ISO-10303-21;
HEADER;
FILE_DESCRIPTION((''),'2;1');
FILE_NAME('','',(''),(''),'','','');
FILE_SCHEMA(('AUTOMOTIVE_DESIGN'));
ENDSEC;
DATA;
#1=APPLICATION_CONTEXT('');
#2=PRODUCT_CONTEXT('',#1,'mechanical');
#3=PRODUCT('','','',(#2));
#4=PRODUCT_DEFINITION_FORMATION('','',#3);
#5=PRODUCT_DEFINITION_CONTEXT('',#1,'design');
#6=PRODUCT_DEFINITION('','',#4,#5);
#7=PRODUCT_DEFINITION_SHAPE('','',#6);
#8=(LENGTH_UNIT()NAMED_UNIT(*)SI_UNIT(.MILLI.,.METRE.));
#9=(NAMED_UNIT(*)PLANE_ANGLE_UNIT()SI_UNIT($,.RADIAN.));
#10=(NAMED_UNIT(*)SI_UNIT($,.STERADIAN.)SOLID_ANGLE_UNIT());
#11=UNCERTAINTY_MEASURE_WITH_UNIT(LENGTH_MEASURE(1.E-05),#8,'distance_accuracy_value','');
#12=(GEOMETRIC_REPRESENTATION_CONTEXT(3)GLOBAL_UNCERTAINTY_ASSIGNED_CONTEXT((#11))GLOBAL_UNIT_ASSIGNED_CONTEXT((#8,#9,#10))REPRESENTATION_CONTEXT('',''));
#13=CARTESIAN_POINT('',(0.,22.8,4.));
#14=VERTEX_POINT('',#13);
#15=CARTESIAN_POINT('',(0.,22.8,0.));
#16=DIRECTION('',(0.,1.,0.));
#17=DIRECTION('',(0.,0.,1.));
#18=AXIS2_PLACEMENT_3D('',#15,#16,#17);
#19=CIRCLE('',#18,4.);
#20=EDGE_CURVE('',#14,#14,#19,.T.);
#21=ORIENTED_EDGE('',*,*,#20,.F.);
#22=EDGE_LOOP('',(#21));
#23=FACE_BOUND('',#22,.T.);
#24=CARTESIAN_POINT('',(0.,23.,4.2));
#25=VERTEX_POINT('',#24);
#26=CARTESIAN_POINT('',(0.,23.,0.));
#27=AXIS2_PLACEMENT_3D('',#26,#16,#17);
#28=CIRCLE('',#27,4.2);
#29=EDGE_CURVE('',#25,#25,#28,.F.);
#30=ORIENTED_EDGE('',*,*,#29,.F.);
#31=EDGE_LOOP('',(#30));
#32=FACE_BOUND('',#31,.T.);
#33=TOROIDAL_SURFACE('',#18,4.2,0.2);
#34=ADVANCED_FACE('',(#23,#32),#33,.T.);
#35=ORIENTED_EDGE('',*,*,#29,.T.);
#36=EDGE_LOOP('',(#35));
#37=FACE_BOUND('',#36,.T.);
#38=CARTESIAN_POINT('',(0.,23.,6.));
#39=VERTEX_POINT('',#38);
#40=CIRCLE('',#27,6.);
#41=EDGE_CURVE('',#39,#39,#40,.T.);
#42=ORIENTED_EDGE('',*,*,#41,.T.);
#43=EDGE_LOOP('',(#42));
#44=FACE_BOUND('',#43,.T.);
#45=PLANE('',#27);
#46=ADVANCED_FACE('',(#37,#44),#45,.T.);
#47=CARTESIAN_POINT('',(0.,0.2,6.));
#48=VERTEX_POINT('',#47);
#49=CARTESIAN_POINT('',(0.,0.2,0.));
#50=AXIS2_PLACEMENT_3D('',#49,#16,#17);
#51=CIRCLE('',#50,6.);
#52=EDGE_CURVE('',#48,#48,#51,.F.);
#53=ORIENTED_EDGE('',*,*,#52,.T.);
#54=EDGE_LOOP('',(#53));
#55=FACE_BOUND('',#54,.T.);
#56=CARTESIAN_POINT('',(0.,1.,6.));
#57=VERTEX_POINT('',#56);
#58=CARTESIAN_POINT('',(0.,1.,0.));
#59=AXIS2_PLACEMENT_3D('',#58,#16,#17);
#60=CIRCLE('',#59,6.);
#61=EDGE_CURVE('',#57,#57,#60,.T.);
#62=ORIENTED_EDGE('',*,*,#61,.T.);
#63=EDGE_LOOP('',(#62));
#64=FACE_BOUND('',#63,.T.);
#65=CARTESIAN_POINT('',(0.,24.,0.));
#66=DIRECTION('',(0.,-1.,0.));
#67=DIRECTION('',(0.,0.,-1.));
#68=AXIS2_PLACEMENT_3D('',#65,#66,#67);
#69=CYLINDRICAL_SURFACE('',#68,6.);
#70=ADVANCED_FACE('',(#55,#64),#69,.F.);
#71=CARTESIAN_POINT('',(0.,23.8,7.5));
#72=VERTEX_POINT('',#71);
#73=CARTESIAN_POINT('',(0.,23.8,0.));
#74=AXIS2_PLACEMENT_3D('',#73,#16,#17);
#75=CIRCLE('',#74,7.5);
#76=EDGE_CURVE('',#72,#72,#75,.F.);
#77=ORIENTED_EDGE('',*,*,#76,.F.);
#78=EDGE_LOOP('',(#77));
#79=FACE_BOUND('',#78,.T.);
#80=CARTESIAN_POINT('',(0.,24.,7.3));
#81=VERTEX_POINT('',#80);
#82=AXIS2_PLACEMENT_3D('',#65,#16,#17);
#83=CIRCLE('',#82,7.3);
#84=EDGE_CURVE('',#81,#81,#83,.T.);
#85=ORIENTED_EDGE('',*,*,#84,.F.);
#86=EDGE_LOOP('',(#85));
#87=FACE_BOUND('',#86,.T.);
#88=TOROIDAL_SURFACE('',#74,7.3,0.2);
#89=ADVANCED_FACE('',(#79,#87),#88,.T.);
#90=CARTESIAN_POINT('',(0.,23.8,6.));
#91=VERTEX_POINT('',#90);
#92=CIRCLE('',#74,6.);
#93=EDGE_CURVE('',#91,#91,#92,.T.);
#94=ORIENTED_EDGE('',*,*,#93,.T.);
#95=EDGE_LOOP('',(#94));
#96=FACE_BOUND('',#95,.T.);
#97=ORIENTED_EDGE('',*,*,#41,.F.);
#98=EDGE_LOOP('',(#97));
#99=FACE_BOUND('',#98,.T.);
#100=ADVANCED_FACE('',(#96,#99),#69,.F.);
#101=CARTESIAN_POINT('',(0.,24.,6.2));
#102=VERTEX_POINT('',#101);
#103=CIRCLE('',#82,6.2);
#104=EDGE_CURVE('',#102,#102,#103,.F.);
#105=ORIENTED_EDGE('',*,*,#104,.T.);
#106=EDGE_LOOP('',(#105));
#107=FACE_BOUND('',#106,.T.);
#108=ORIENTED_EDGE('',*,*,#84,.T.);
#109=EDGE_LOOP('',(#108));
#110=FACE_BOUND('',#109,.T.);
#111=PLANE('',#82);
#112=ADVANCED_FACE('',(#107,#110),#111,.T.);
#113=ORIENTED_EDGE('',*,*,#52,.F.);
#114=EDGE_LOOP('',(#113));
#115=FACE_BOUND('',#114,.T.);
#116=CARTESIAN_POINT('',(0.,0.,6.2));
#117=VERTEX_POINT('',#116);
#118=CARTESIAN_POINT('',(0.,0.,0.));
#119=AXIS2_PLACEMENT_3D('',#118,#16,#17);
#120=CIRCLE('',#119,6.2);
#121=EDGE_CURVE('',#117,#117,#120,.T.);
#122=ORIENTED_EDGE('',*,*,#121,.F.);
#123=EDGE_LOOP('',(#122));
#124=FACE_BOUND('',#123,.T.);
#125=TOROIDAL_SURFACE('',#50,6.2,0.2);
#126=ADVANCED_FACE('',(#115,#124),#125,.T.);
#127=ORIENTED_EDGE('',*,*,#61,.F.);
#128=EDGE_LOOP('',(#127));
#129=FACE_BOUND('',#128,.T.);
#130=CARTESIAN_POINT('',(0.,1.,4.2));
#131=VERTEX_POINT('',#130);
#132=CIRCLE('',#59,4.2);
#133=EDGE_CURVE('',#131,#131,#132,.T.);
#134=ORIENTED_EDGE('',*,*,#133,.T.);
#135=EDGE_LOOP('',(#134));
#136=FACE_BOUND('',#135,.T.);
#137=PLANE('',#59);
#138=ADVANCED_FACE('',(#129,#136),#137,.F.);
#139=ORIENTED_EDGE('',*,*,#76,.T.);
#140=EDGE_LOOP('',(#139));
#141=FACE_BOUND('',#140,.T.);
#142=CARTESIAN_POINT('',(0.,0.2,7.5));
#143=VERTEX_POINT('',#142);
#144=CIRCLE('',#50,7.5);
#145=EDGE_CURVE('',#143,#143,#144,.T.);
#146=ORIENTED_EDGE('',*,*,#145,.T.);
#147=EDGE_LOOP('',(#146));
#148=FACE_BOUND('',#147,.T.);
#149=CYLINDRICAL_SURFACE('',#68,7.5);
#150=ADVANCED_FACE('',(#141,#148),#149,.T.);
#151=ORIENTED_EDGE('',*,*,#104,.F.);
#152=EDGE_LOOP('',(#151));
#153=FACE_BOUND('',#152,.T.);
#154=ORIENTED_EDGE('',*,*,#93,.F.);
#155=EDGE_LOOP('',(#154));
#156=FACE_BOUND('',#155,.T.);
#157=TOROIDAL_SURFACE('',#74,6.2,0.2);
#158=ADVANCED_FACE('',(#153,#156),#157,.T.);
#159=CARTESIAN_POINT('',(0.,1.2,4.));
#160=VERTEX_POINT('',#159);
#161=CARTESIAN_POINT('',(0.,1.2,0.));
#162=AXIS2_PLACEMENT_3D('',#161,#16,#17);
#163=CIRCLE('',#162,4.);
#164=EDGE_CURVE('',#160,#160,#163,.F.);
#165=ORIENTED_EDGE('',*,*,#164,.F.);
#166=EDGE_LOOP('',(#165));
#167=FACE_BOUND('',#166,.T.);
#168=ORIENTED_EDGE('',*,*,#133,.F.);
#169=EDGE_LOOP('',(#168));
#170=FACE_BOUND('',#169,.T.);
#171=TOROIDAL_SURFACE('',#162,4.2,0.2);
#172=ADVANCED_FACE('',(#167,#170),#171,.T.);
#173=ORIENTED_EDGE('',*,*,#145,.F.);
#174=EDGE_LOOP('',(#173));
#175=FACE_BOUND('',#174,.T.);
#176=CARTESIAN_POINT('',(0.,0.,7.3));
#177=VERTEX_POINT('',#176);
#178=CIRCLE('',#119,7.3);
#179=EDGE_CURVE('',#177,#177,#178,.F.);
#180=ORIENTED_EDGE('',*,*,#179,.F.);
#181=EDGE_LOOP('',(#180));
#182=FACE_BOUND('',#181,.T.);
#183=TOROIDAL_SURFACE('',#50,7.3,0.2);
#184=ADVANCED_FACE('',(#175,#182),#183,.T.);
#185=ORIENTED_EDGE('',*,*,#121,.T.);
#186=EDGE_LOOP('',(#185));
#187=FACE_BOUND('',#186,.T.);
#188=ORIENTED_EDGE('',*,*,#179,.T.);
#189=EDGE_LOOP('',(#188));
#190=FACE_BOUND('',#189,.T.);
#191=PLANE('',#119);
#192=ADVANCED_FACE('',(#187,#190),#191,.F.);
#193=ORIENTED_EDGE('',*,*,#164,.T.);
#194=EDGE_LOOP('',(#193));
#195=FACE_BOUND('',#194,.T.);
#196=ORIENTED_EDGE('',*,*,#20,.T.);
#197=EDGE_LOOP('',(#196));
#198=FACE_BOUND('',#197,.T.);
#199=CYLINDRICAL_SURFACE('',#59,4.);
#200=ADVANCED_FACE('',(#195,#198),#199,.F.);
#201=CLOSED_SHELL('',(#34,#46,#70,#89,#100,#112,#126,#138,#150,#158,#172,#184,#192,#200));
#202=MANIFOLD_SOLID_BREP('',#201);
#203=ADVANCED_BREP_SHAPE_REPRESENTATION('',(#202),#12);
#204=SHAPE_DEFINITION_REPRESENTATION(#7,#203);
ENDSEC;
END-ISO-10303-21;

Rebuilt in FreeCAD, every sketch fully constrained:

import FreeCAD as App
import Part
import Sketcher


def edges_at(feature, points):
    """Names of the edges that pass closest to the given points."""
    edges = feature.Shape.Edges
    near = lambda p: min(range(len(edges)), key=lambda i: edges[i].distToShape(Part.Vertex(*p))[0])
    return sorted({f"Edge{near(p) + 1}" for p in points})

doc = App.newDocument("Part")
params = doc.addObject("Spreadsheet::Sheet", "Params")
for row, (alias, value) in enumerate([
    ("sketch1_diameter", "15 mm"),
    ("sketch1_diameter2", "12 mm"),
    ("pad1_length", "24 mm"),
    ("sketch2_diameter", "12 mm"),
    ("sketch2_diameter2", "8 mm"),
    ("pad2_length", "22 mm"),
    ("fillet_radius", "0.2 mm"),
], start=1):
    params.set(f"A{row}", alias)
    params.set(f"B{row}", "=" + value)
    params.setAlias(f"B{row}", alias)

body = doc.addObject("PartDesign::Body", "Body")

# Sketch on XZ plane
sketch1 = doc.addObject("Sketcher::SketchObject", "Sketch")
body.addObject(sketch1)
sketch1.AttachmentSupport = (doc.XZ_Plane, [""])
sketch1.MapMode = "FlatFace"
sketch1.addGeometry(Part.Circle(App.Vector(0, 0, 0), App.Vector(0, 0, 1), 8), False)
sketch1.addGeometry(Part.Circle(App.Vector(0, 0, 0), App.Vector(0, 0, 1), 6), False)
sketch1.addConstraint(Sketcher.Constraint("Coincident", 0, 3, -1, 1))
sketch1.addConstraint(Sketcher.Constraint("Coincident", 1, 3, -1, 1))
sketch1.addConstraint(Sketcher.Constraint("Diameter", 0, 15.0))
sketch1.addConstraint(Sketcher.Constraint("Diameter", 1, 12.0))
sketch1.setExpression("Constraints[2]", "Params.sketch1_diameter")
sketch1.setExpression("Constraints[3]", "Params.sketch1_diameter2")
pad1 = doc.addObject("PartDesign::Pad", "Pad")
body.addObject(pad1)
pad1.Profile = sketch1
pad1.setExpression("Length", "Params.pad1_length")
pad1.Reversed = True

# Sketch on XZ plane
sketch2 = doc.addObject("Sketcher::SketchObject", "Sketch001")
body.addObject(sketch2)
sketch2.AttachmentSupport = (doc.XZ_Plane, [""])
sketch2.MapMode = "FlatFace"
sketch2.AttachmentOffset = App.Placement(App.Vector(0, 0, -23), App.Rotation())
sketch2.addGeometry(Part.Circle(App.Vector(0, 0, 0), App.Vector(0, 0, 1), 6), False)
sketch2.addGeometry(Part.Circle(App.Vector(0, 0, 0), App.Vector(0, 0, 1), 4), False)
sketch2.addConstraint(Sketcher.Constraint("Coincident", 0, 3, -1, 1))
sketch2.addConstraint(Sketcher.Constraint("Coincident", 1, 3, -1, 1))
sketch2.addConstraint(Sketcher.Constraint("Diameter", 0, 12.0))
sketch2.addConstraint(Sketcher.Constraint("Diameter", 1, 8.0))
sketch2.setExpression("Constraints[2]", "Params.sketch2_diameter")
sketch2.setExpression("Constraints[3]", "Params.sketch2_diameter2")
pad2 = doc.addObject("PartDesign::Pad", "Pad001")
body.addObject(pad2)
pad2.Profile = sketch2
pad2.setExpression("Length", "Params.pad2_length")
doc.recompute()

fillet = doc.addObject("PartDesign::Fillet", "Fillet")
body.addObject(fillet)
fillet.Base = (pad2, edges_at(pad2, [
    (-4, 1, 0),
    (-4, 23, 0),
    (-7.5, 0, 0),
    (-7.5, 24, 0),
    (-6, 0, 0),
    (-6, 24, 0),
]))
fillet.setExpression("Radius", "Params.fillet_radius")

doc.recompute()
